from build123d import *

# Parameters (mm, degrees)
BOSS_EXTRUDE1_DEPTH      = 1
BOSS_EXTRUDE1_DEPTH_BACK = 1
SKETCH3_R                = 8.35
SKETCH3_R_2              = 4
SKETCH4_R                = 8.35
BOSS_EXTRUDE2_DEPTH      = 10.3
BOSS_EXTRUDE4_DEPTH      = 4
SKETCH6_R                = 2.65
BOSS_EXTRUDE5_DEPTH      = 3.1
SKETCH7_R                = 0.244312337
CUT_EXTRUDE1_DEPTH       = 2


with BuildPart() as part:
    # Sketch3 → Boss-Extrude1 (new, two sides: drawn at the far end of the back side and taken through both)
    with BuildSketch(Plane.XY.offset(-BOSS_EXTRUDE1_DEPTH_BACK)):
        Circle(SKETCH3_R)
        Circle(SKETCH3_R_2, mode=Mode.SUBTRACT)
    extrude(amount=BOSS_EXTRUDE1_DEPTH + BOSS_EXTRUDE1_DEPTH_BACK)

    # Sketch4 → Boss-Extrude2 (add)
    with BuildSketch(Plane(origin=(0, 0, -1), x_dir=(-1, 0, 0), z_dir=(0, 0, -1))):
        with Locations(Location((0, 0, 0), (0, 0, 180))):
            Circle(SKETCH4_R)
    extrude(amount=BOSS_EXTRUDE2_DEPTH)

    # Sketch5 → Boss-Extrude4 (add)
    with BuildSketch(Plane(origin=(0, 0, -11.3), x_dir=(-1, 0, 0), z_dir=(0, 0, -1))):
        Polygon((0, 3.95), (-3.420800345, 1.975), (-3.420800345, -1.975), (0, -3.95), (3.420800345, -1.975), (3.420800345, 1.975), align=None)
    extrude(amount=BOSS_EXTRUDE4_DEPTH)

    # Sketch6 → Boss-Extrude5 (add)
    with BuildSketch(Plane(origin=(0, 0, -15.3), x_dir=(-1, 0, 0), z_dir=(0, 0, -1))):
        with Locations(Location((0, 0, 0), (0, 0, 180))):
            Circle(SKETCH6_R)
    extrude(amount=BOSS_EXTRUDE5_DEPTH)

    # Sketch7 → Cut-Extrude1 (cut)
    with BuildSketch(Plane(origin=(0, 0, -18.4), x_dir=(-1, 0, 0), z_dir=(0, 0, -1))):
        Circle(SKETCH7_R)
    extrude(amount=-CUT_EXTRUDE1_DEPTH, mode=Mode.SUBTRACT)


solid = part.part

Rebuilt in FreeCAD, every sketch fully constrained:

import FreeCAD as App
import Part
import Sketcher
Q = App.Units.Quantity

doc = App.newDocument("Part")
body = doc.addObject("PartDesign::Body", "Body")

# Sketch on XY plane
sketch1 = body.newObject("Sketcher::SketchObject", "Sketch")
sketch1.AttachmentSupport = (doc.getObject("XY_Plane"), [""])
sketch1.MapMode = "FlatFace"
sketch1.addGeometry([
    Part.Circle(App.Vector(0, 0, 0), App.Vector(0, 0, 1), 8.3),
    Part.Circle(App.Vector(0, 0, 0), App.Vector(0, 0, 1), 4),
], False)
sketch1.addConstraint([
    Sketcher.Constraint("Coincident", 0, 3, -1, 1),
    Sketcher.Constraint("Coincident", 1, 3, -1, 1),
    Sketcher.Constraint("Diameter", 1, 8.0),
    Sketcher.Constraint("Diameter", 0, 16.7),
])
pad1 = body.newObject("PartDesign::Pad", "Pad")
pad1.Profile = sketch1
pad1.Type = "TwoLengths"
pad1.Length = 1
pad1.Length2 = 1

# Sketch on XY plane
sketch2 = body.newObject("Sketcher::SketchObject", "Sketch001")
sketch2.AttachmentSupport = (doc.getObject("XY_Plane"), [""])
sketch2.MapMode = "FlatFace"
sketch2.AttachmentOffset = App.Placement(App.Vector(0, 0, -1), App.Rotation())
sketch2.addGeometry(Part.Circle(App.Vector(0, 0, 0), App.Vector(0, 0, 1), 8), False)
sketch2.addConstraint([
    Sketcher.Constraint("Coincident", 0, 3, -1, 1),
    Sketcher.Constraint("Diameter", 0, 16.7),
])
pad2 = body.newObject("PartDesign::Pad", "Pad001")
pad2.Profile = sketch2
pad2.Length = 10.3
pad2.Reversed = True

# Sketch on XY plane
sketch3 = body.newObject("Sketcher::SketchObject", "Sketch002")
sketch3.AttachmentSupport = (doc.getObject("XY_Plane"), [""])
sketch3.MapMode = "FlatFace"
sketch3.AttachmentOffset = App.Placement(App.Vector(0, 0, -11.3), App.Rotation())
sketch3.addGeometry([
    Part.LineSegment(App.Vector(0, 4, 0), App.Vector(3.4, 2, 0)),  # 0
    Part.LineSegment(App.Vector(3.4, 2, 0), App.Vector(3.4, -2, 0)),  # 1
    Part.LineSegment(App.Vector(3.4, -2, 0), App.Vector(0, -4, 0)),  # 2
    Part.LineSegment(App.Vector(0, -4, 0), App.Vector(-3.4, -2, 0)),  # 3
    Part.LineSegment(App.Vector(-3.4, -2, 0), App.Vector(-3.4, 2, 0)),  # 4
    Part.LineSegment(App.Vector(-3.4, 2, 0), App.Vector(0, 4, 0)),  # 5
], False)
sketch3.addConstraint([
    Sketcher.Constraint("Coincident", 0, 2, 1, 1),
    Sketcher.Constraint("Coincident", 1, 2, 2, 1),
    Sketcher.Constraint("Coincident", 2, 2, 3, 1),
    Sketcher.Constraint("Coincident", 3, 2, 4, 1),
    Sketcher.Constraint("Coincident", 4, 2, 5, 1),
    Sketcher.Constraint("Coincident", 5, 2, 0, 1),
    Sketcher.Constraint("Vertical", 1),
    Sketcher.Constraint("Vertical", 4),
    Sketcher.Constraint("Symmetric", 0, 2, 3, 2, -1, 1),
    Sketcher.Constraint("Symmetric", 2, 2, 5, 2, -1, 1),
    Sketcher.Constraint("PointOnObject", 2, 2, -2),
    Sketcher.Constraint("Parallel", 2, 5),
    Sketcher.Constraint("Horizontal", 1, 2, 3, 2),
    Sketcher.Constraint("Angle", 0, Q("-30 deg")),
    Sketcher.Constraint("DistanceY", 1, 2, 1, 1, 3.95),
    Sketcher.Constraint("DistanceY", 2, 2, 5, 2, 7.9),
])
pad3 = body.newObject("PartDesign::Pad", "Pad002")
pad3.Profile = sketch3
pad3.Length = 4
pad3.Reversed = True

# Sketch on XY plane
sketch4 = body.newObject("Sketcher::SketchObject", "Sketch003")
sketch4.AttachmentSupport = (doc.getObject("XY_Plane"), [""])
sketch4.MapMode = "FlatFace"
sketch4.AttachmentOffset = App.Placement(App.Vector(0, 0, -15.3), App.Rotation())
sketch4.addGeometry(Part.Circle(App.Vector(0, 0, 0), App.Vector(0, 0, 1), 2.6), False)
sketch4.addConstraint([
    Sketcher.Constraint("Coincident", 0, 3, -1, 1),
    Sketcher.Constraint("Diameter", 0, 5.3),
])
pad4 = body.newObject("PartDesign::Pad", "Pad003")
pad4.Profile = sketch4
pad4.Length = 3.1
pad4.Reversed = True

# Sketch on XY plane
sketch5 = body.newObject("Sketcher::SketchObject", "Sketch004")
sketch5.AttachmentSupport = (doc.getObject("XY_Plane"), [""])
sketch5.MapMode = "FlatFace"
sketch5.AttachmentOffset = App.Placement(App.Vector(0, 0, -18.4), App.Rotation())
sketch5.addGeometry(Part.Circle(App.Vector(0, 0, 0), App.Vector(0, 0, 1), 0.24), False)
sketch5.addConstraint([
    Sketcher.Constraint("Coincident", 0, 3, -1, 1),
    Sketcher.Constraint("Diameter", 0, 0.488625),
])
pocket1 = body.newObject("PartDesign::Pocket", "Pocket")
pocket1.Profile = sketch5
pocket1.Length = 2
pocket1.Reversed = True

doc.recompute()
